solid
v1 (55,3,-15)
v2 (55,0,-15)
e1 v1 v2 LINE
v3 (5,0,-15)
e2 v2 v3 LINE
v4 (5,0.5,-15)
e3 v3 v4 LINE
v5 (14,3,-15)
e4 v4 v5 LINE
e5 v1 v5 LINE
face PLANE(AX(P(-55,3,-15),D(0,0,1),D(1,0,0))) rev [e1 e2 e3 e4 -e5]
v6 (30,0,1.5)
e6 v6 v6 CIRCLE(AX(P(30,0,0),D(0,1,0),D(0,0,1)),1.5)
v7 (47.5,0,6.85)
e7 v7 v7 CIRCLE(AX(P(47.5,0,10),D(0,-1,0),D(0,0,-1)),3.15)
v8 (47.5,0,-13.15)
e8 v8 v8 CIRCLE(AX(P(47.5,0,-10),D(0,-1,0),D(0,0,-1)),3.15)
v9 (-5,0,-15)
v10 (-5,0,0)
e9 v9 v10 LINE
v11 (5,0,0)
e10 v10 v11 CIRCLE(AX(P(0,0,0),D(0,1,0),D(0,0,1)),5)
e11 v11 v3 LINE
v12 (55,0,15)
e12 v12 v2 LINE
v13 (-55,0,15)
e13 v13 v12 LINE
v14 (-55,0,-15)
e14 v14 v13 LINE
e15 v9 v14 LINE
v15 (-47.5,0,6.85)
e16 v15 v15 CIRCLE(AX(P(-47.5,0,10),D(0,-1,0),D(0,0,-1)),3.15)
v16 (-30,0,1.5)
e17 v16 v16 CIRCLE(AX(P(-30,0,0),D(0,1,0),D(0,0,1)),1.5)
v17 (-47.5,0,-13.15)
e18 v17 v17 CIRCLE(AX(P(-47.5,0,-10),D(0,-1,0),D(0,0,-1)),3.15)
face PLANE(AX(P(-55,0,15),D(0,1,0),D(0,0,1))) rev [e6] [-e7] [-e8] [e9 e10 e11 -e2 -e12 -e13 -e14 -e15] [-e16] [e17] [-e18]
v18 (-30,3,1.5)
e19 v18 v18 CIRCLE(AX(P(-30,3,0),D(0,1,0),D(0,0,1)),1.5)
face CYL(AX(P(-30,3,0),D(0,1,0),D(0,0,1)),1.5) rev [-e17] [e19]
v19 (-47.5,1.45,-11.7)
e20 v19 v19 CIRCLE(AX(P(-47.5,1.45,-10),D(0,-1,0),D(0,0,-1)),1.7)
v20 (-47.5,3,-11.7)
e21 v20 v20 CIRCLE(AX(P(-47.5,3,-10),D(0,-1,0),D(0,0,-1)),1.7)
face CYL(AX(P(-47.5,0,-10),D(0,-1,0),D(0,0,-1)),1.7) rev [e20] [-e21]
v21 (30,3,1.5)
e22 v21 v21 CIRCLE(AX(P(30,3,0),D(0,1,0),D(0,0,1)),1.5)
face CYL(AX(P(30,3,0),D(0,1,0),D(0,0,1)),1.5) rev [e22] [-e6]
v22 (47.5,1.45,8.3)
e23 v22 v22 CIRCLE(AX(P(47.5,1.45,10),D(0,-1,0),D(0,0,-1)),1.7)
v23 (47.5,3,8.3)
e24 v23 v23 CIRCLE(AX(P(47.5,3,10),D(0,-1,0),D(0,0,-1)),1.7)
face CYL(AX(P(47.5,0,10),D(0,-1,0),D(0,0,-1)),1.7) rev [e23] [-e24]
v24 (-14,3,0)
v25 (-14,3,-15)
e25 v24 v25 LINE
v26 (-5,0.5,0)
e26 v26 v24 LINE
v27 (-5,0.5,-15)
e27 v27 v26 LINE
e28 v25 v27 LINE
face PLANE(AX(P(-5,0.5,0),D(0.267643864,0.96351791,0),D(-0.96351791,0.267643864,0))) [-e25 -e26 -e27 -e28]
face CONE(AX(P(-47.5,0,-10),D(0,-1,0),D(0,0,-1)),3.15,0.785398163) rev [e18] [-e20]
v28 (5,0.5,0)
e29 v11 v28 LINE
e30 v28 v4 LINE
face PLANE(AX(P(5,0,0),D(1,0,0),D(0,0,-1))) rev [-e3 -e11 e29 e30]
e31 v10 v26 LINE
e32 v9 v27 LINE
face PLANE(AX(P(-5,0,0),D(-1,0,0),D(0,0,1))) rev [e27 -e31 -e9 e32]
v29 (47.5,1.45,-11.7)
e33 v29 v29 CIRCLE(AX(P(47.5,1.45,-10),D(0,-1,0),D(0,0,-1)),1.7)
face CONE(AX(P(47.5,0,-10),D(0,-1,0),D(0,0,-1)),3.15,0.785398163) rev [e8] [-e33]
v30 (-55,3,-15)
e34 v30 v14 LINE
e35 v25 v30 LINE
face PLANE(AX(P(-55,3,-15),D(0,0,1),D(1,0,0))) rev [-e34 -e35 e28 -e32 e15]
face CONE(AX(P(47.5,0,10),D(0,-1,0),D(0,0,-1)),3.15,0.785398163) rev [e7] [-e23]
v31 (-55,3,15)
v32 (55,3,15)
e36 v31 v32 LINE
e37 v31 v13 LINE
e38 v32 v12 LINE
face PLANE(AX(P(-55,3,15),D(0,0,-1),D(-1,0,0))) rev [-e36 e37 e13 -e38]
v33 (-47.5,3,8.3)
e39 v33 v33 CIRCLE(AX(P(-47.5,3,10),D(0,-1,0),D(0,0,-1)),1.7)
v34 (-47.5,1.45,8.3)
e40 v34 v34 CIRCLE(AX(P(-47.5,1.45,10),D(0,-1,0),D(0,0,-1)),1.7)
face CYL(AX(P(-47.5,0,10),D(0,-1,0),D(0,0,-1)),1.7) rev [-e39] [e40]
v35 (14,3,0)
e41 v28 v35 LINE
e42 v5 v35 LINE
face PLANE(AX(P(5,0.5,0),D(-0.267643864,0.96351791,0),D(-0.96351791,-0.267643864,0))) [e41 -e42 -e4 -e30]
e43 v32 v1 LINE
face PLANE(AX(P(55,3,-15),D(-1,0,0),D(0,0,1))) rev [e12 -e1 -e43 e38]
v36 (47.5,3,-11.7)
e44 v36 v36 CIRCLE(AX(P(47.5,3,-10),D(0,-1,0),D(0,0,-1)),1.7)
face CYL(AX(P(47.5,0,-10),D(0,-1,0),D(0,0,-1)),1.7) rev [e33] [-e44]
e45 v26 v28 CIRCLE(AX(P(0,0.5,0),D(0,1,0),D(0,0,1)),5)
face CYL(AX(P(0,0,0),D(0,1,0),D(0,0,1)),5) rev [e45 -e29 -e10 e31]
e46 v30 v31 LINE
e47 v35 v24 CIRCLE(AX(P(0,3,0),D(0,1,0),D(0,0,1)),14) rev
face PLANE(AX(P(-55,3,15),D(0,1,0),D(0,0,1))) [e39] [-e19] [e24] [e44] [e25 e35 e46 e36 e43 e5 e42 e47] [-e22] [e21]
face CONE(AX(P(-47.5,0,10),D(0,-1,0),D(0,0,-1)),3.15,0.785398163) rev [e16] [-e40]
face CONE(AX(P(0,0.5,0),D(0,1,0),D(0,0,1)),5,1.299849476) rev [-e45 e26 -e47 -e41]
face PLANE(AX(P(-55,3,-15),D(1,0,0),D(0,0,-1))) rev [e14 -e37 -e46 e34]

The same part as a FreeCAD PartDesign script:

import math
import FreeCAD as App
import Part
import Sketcher
from FreeCAD import Vector
Q = App.Units.Quantity


def edges_at(feature, points):
    """Names of the edges that pass closest to the given points."""
    edges = feature.Shape.Edges
    near = lambda p: min(range(len(edges)), key=lambda i: edges[i].distToShape(Part.Vertex(*p))[0])
    return sorted({f"Edge{near(p) + 1}" for p in points})

doc = App.newDocument("Part")
params = doc.addObject("Spreadsheet::Sheet", "Params")
for row, (alias, value) in enumerate([
    ("sketch1_width", "110 mm"),
    ("sketch1_height", "30 mm"),
    ("pad1_length", "3 mm"),
    ("sketch2_radius", "5 mm"),
    ("sketch2_height", "15 mm"),
    ("chamfer_size", "9 mm"),
    ("chamfer_size2", "2.5 mm"),
    ("sketch3_width", "3 mm"),
    ("sketch3_height", "1.7 mm"),
    ("sketch3_width2", "1.55 mm"),
    ("groove_angle", "360 deg"),
    ("linearpattern_pitch", "95 mm"),
    ("linearpattern2_pitch", "97.082439 mm"),
    ("linearpattern3_pitch", "20 mm"),
    ("sketch4_diameter", "3 mm"),
    ("hole_diameter", "3 mm"),
], start=1):
    params.set(f"A{row}", alias)
    params.set(f"B{row}", "=" + value)
    params.setAlias(f"B{row}", alias)

body = doc.addObject("PartDesign::Body", "Body")

# Sketch on XZ plane
sketch1 = body.newObject("Sketcher::SketchObject", "Sketch")
sketch1.AttachmentSupport = (doc.getObject("XZ_Plane"), [""])
sketch1.MapMode = "FlatFace"
sketch1.addGeometry([
    Part.LineSegment(Vector(-55, -15, 0), Vector(-55, 15, 0)),
    Part.LineSegment(Vector(-55, 15, 0), Vector(55, 15, 0)),
    Part.LineSegment(Vector(55, 15, 0), Vector(55, -15, 0)),
    Part.LineSegment(Vector(55, -15, 0), Vector(-55, -15, 0)),
], False)
sketch1.addConstraint([
    Sketcher.Constraint("Coincident", 0, 2, 1, 1),
    Sketcher.Constraint("Coincident", 1, 2, 2, 1),
    Sketcher.Constraint("Coincident", 2, 2, 3, 1),
    Sketcher.Constraint("Coincident", 3, 2, 0, 1),
    Sketcher.Constraint("Vertical", 0),
    Sketcher.Constraint("Horizontal", 1),
    Sketcher.Constraint("Vertical", 2),
    Sketcher.Constraint("Horizontal", 3),
    Sketcher.Constraint("Symmetric", 0, 2, 2, 2, -1, 1),
    Sketcher.Constraint("DistanceX", 1, 1, 1, 2, Q("110 mm")),
    Sketcher.Constraint("DistanceY", 0, 1, 0, 2, Q("30 mm")),
])
sketch1.setExpression("Constraints[9]", "Params.sketch1_width")
sketch1.setExpression("Constraints[10]", "Params.sketch1_height")
pad1 = body.newObject("PartDesign::Pad", "Pad")
pad1.Profile = sketch1
pad1.setExpression("Length", "Params.pad1_length")
pad1.Reversed = True

# Sketch on XZ plane
sketch2 = body.newObject("Sketcher::SketchObject", "Sketch001")
sketch2.AttachmentSupport = (doc.getObject("XZ_Plane"), [""])
sketch2.MapMode = "FlatFace"
sketch2.AttachmentOffset = App.Placement(Vector(0, 0, -3), App.Rotation())
sketch2.addGeometry([
    Part.LineSegment(Vector(-5, -15, 0), Vector(-5, 0, 0)),
    Part.ArcOfCircle(Part.Circle(Vector(0, 0, 0), Vector(0, 0, 1), 5), math.radians(0), math.radians(180)),
    Part.LineSegment(Vector(5, 0, 0), Vector(5, -15, 0)),
    Part.LineSegment(Vector(5, -15, 0), Vector(-5, -15, 0)),
], False)
sketch2.addConstraint([
    Sketcher.Constraint("Tangent", 0, 2, 1, 2),
    Sketcher.Constraint("Tangent", 1, 1, 2, 1),
    Sketcher.Constraint("Coincident", 2, 2, 3, 1),
    Sketcher.Constraint("Coincident", 3, 2, 0, 1),
    Sketcher.Constraint("Vertical", 0),
    Sketcher.Constraint("Vertical", 2),
    Sketcher.Constraint("Horizontal", 3),
    Sketcher.Constraint("Coincident", 1, 3, -1, 1),
    Sketcher.Constraint("Radius", 1, Q("5 mm")),
    Sketcher.Constraint("DistanceY", 0, 1, 0, 2, Q("15 mm")),
])
sketch2.setExpression("Constraints[8]", "Params.sketch2_radius")
sketch2.setExpression("Constraints[9]", "Params.sketch2_height")
pocket1 = body.newObject("PartDesign::Pocket", "Pocket")
pocket1.Profile = sketch2
pocket1.Type = "ThroughAll"
pocket1.Reversed = True
doc.recompute()

chamfer = body.newObject("PartDesign::Chamfer", "Chamfer")
chamfer.Base = (pocket1, edges_at(pocket1, [(0, 3, 5), (5, 3, -7.5), (-5, 3, -7.5)]))
chamfer.ChamferType = "Two distances"
chamfer.setExpression("Size", "Params.chamfer_size")
chamfer.setExpression("Size2", "Params.chamfer_size2")

# Sketch on YZ plane
sketch3 = body.newObject("Sketcher::SketchObject", "Sketch002")
sketch3.AttachmentSupport = (doc.getObject("YZ_Plane"), [""])
sketch3.MapMode = "FlatFace"
sketch3.AttachmentOffset = App.Placement(Vector(0, 0, 47.5), App.Rotation())
sketch3.addGeometry([
    Part.LineSegment(Vector(3, -10, 0), Vector(0, -10, 0)),  # 0
    Part.LineSegment(Vector(0, -10, 0), Vector(0, -13.15, 0)),  # 1
    Part.LineSegment(Vector(0, -13.15, 0), Vector(1.45, -11.7, 0)),  # 2
    Part.LineSegment(Vector(1.45, -11.7, 0), Vector(3, -11.7, 0)),  # 3
    Part.LineSegment(Vector(3, -11.7, 0), Vector(3, -10, 0)),  # 4
], False)
sketch3.addGeometry(Part.LineSegment(Vector(0, -10, 0), Vector(3, -10, 0)), True)  # axis
sketch3.addConstraint([
    Sketcher.Constraint("Coincident", 0, 2, 1, 1),
    Sketcher.Constraint("Coincident", 1, 2, 2, 1),
    Sketcher.Constraint("Coincident", 2, 2, 3, 1),
    Sketcher.Constraint("Coincident", 3, 2, 4, 1),
    Sketcher.Constraint("Coincident", 4, 2, 0, 1),
    Sketcher.Constraint("Horizontal", 0),
    Sketcher.Constraint("Vertical", 1),
    Sketcher.Constraint("Horizontal", 3),
    Sketcher.Constraint("Vertical", 4),
    Sketcher.Constraint("Horizontal", 5),
    Sketcher.Constraint("Coincident", 5, 1, 0, 2),
    Sketcher.Constraint("PointOnObject", 0, 2, -2),
    Sketcher.Constraint("Vertical", 3, 2, 5, 2),
    Sketcher.Constraint("DistanceX", 0, 2, 0, 1, Q("3 mm")),
    Sketcher.Constraint("Angle", 2, Q("45 deg")),
    Sketcher.Constraint("DistanceY", 4, 1, 4, 2, Q("1.7 mm")),
    Sketcher.Constraint("DistanceY", 0, 2, -1, 1, Q("10 mm")),
    Sketcher.Constraint("DistanceX", 3, 1, 3, 2, Q("1.55 mm")),
])
sketch3.setExpression("Constraints[13]", "Params.sketch3_width")
sketch3.setExpression("Constraints[15]", "Params.sketch3_height")
sketch3.setExpression("Constraints[17]", "Params.sketch3_width2")
groove = body.newObject("PartDesign::Groove", "Groove")
groove.Profile = sketch3
groove.ReferenceAxis = (sketch3, ["Axis0"])
groove.setExpression("Angle", "Params.groove_angle")
doc.recompute()

linearpattern = body.newObject("PartDesign::LinearPattern", "LinearPattern")
linearpattern.Originals = [groove]
linearpattern.Direction = (doc.getObject("X_Axis"), [""])
linearpattern.Mode = "offset"
linearpattern.setExpression("Offset", "Params.linearpattern_pitch")
linearpattern.Occurrences = 2
linearpattern.Reversed = True
body.Tip = linearpattern
doc.recompute()

datumline = body.newObject("PartDesign::Line", "DatumLine")
datumline.Placement = App.Placement(Vector(0, 0, 0), App.Rotation(Vector(0, 0, 1), Vector(-0.978549785, 0, 0.206010481)))
linearpattern2 = body.newObject("PartDesign::LinearPattern", "LinearPattern001")
linearpattern2.Originals = [groove]
linearpattern2.Direction = (datumline, [""])
linearpattern2.Mode = "offset"
linearpattern2.setExpression("Offset", "Params.linearpattern2_pitch")
linearpattern2.Occurrences = 2
body.Tip = linearpattern2
doc.recompute()

linearpattern3 = body.newObject("PartDesign::LinearPattern", "LinearPattern002")
linearpattern3.Originals = [groove]
linearpattern3.Direction = (doc.getObject("Z_Axis"), [""])
linearpattern3.Mode = "offset"
linearpattern3.setExpression("Offset", "Params.linearpattern3_pitch")
linearpattern3.Occurrences = 2
body.Tip = linearpattern3

# Sketch on XZ plane
sketch4 = body.newObject("Sketcher::SketchObject", "Sketch003")
sketch4.AttachmentSupport = (doc.getObject("XZ_Plane"), [""])
sketch4.MapMode = "FlatFace"
sketch4.AttachmentOffset = App.Placement(Vector(0, 0, -3), App.Rotation())
sketch4.addGeometry([
    Part.Circle(Vector(30, 0, 0), Vector(0, 0, 1), 1.5),
    Part.Circle(Vector(-30, 0, 0), Vector(0, 0, 1), 1.5),
], False)
sketch4.addConstraint([
    Sketcher.Constraint("Equal", 0, 1),
    Sketcher.Constraint("Symmetric", 0, 3, 1, 3, -1, 1),
    Sketcher.Constraint("PointOnObject", 0, 3, -1),
    Sketcher.Constraint("Diameter", 0, Q("3 mm")),
    Sketcher.Constraint("DistanceX", -1, 1, 0, 3, Q("30 mm")),
])
sketch4.setExpression("Constraints[3]", "Params.sketch4_diameter")
doc.recompute()
hole = body.newObject("PartDesign::Hole", "Hole")
hole.Profile = sketch4
hole.ThreadType = "None"
hole.setExpression("Diameter", "Params.hole_diameter")
hole.DepthType = "ThroughAll"
hole.Reversed = True

doc.recompute()
